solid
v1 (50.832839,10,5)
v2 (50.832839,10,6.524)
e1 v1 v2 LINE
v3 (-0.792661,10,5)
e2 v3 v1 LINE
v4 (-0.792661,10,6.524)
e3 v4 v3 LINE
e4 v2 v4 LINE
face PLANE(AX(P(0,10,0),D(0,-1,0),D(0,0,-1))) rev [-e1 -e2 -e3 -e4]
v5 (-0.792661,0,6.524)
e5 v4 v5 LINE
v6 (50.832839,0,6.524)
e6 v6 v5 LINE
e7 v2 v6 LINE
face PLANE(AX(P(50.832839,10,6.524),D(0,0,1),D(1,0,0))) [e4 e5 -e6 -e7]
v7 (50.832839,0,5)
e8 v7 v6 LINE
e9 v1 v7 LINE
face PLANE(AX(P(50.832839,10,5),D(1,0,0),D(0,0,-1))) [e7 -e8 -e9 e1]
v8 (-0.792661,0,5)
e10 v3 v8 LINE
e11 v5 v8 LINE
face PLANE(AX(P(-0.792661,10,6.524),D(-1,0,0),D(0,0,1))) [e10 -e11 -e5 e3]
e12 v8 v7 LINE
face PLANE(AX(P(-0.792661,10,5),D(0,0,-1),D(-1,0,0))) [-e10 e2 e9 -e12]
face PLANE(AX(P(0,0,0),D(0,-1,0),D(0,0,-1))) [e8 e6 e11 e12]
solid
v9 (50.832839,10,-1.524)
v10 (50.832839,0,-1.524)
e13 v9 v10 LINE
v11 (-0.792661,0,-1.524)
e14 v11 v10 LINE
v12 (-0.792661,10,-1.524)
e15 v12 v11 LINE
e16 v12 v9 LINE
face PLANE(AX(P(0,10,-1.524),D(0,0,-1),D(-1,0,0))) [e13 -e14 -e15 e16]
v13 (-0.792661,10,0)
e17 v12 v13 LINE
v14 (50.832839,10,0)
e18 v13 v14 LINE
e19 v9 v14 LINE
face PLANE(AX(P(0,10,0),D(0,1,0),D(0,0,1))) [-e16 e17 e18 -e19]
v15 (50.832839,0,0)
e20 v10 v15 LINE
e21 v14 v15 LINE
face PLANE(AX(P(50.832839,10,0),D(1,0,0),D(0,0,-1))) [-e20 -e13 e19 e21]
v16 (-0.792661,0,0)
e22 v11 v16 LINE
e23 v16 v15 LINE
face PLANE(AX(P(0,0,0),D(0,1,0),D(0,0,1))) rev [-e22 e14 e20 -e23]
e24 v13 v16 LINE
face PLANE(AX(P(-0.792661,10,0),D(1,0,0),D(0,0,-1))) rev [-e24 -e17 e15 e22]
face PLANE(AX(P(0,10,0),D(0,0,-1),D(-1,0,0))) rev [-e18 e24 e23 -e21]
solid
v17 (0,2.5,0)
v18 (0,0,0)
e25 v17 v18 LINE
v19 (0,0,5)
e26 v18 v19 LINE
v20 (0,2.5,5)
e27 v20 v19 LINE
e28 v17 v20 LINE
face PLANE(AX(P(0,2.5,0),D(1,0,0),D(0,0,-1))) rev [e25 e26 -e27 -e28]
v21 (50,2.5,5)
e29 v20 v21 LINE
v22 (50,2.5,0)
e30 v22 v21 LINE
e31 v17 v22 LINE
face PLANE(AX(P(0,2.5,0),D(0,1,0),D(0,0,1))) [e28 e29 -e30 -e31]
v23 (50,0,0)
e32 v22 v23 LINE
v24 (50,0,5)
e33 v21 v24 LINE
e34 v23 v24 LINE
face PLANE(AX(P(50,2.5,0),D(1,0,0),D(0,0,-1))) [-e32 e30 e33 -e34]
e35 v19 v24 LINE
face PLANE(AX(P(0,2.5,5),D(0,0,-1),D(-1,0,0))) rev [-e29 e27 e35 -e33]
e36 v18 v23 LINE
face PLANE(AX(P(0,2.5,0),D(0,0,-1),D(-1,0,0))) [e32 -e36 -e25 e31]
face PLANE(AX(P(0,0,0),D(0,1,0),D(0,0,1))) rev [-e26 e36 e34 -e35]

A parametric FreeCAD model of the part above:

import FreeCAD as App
import Part
import Sketcher


def add_polygon(sketch, points):
    """Adds a closed chain of lines whose ends are joined by coincident constraints."""
    first, n = sketch.GeometryCount, len(points)
    for a, b in zip(points, points[1:] + points[:1]):
        sketch.addGeometry(Part.LineSegment(App.Vector(*a, 0), App.Vector(*b, 0)), False)
    for i in range(n):
        sketch.addConstraint(Sketcher.Constraint("Coincident", first + i, 2, first + (i + 1) % n, 1))

doc = App.newDocument("Part")
body = doc.addObject("PartDesign::Body", "Body")

# Sketch on XZ plane
sketch1 = doc.addObject("Sketcher::SketchObject", "Sketch")
body.addObject(sketch1)
sketch1.AttachmentSupport = (doc.XZ_Plane, [""])
sketch1.MapMode = "FlatFace"
add_polygon(sketch1, [(0, 0), (0, 5), (50, 5), (50, 0)])  # lines 0-3
sketch1.addConstraint([
    Sketcher.Constraint("Vertical", 0),
    Sketcher.Constraint("Horizontal", 1),
    Sketcher.Constraint("Vertical", 2),
    Sketcher.Constraint("Horizontal", 3),
    Sketcher.Constraint("Coincident", 3, 2, -1, 1),
    Sketcher.Constraint("DistanceX", 1, 1, 1, 2, 50.0),
    Sketcher.Constraint("DistanceY", 0, 1, 0, 2, 5.0),
])
pad1 = doc.addObject("PartDesign::Pad", "Pad")
body.addObject(pad1)
pad1.Profile = sketch1
pad1.Length = 2.5
pad1.Reversed = True
body2 = doc.addObject("PartDesign::Body", "Body001")

# Sketch on XZ plane
sketch2 = doc.addObject("Sketcher::SketchObject", "Sketch001")
body2.addObject(sketch2)
sketch2.AttachmentSupport = (doc.getObject("XZ_Plane001"), [""])
sketch2.MapMode = "FlatFace"
add_polygon(sketch2, [(-0.8, 0), (50.8, 0), (50.8, -1.5), (-0.8, -1.5)])  # lines 0-3
sketch2.addConstraint([
    Sketcher.Constraint("Horizontal", 0),
    Sketcher.Constraint("Vertical", 1),
    Sketcher.Constraint("Horizontal", 2),
    Sketcher.Constraint("Vertical", 3),
    Sketcher.Constraint("PointOnObject", 0, 2, -1),
    Sketcher.Constraint("DistanceY", 1, 2, 1, 1, 1.524),
    Sketcher.Constraint("DistanceX", 0, 1, 0, 2, 51.6255),
    Sketcher.Constraint("DistanceX", -1, 1, 0, 2, 50.832839),
])
pad2 = doc.addObject("PartDesign::Pad", "Pad001")
body2.addObject(pad2)
pad2.Profile = sketch2
pad2.Length = 10
pad2.Reversed = True
body3 = doc.addObject("PartDesign::Body", "Body002")

# Sketch on XZ plane
sketch3 = doc.addObject("Sketcher::SketchObject", "Sketch002")
body3.addObject(sketch3)
sketch3.AttachmentSupport = (doc.getObject("XZ_Plane002"), [""])
sketch3.MapMode = "FlatFace"
add_polygon(sketch3, [(-0.8, 5), (-0.8, 6.5), (50.8, 6.5), (50.8, 5)])  # lines 0-3
sketch3.addConstraint([
    Sketcher.Constraint("Vertical", 0),
    Sketcher.Constraint("Horizontal", 1),
    Sketcher.Constraint("Vertical", 2),
    Sketcher.Constraint("Horizontal", 3),
    Sketcher.Constraint("DistanceY", -1, 1, 2, 2, 5.0),
    Sketcher.Constraint("DistanceY", 0, 1, 0, 2, 1.524),
    Sketcher.Constraint("DistanceX", 1, 1, 1, 2, 51.6255),
    Sketcher.Constraint("DistanceX", 0, 2, -1, 1, 0.792661),
])
pad3 = doc.addObject("PartDesign::Pad", "Pad002")
body3.addObject(pad3)
pad3.Profile = sketch3
pad3.Length = 10
pad3.Reversed = True

doc.recompute()
